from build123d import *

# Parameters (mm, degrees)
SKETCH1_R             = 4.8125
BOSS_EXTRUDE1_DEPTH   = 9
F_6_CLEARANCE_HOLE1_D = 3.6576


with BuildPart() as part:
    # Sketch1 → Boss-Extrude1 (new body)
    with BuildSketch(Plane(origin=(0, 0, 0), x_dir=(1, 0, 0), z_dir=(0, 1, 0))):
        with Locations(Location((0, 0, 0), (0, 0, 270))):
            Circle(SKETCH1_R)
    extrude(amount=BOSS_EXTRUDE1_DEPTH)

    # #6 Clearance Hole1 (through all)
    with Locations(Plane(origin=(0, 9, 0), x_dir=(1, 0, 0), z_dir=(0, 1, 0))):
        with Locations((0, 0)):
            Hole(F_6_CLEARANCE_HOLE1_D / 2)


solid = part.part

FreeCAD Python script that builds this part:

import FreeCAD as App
import Part
import Sketcher
from FreeCAD import Vector

doc = App.newDocument("Part")
body = doc.addObject("PartDesign::Body", "Body")

sketch1 = body.newObject("Sketcher::SketchObject", "Sketch")
sketch1.AttachmentSupport = (doc.getObject("XZ_Plane"), [""])
sketch1.MapMode = "FlatFace"
sketch1.addGeometry(Part.Circle(Vector(0, 0, 0), Vector(0, 0, 1), 4.8), False)
sketch1.addConstraint([
    Sketcher.Constraint("Coincident", 0, 3, -1, 1),
    Sketcher.Constraint("Diameter", 0, 9.625),
])
pad1 = body.newObject("PartDesign::Pad", "Pad")
pad1.Profile = sketch1
pad1.Length = 9
pad1.Reversed = True

sketch2 = body.newObject("Sketcher::SketchObject", "Sketch001")
sketch2.AttachmentSupport = (doc.getObject("XZ_Plane"), [""])
sketch2.MapMode = "FlatFace"
sketch2.AttachmentOffset = App.Placement(Vector(0, 0, -9), App.Rotation())
sketch2.addGeometry(Part.Circle(Vector(0, 0, 0), Vector(0, 0, 1), 1.8), False)
sketch2.addConstraint([
    Sketcher.Constraint("Coincident", 0, 3, -1, 1),
    Sketcher.Constraint("Diameter", 0, 3.6576),
])
doc.recompute()
hole = body.newObject("PartDesign::Hole", "Hole")
hole.Profile = sketch2
hole.ThreadType = "None"
hole.Diameter = 3.6576
hole.DepthType = "ThroughAll"
hole.Reversed = True

doc.recompute()
